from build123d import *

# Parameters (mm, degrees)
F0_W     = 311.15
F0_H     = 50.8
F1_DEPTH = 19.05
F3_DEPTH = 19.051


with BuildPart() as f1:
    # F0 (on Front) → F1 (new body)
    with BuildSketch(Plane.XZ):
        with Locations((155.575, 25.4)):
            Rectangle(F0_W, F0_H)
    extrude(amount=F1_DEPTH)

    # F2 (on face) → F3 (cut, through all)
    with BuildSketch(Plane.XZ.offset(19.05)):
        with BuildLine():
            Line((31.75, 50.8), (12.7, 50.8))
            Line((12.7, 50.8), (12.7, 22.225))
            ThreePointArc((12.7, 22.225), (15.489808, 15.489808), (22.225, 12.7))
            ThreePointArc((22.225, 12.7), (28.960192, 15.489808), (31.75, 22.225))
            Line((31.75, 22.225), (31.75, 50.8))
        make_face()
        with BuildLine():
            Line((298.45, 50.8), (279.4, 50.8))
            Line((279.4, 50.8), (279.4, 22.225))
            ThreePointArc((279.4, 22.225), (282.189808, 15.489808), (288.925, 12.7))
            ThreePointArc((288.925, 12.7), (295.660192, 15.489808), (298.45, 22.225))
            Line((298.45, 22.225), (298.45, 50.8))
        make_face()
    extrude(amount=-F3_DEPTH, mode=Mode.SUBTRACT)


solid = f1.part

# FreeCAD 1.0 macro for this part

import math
import FreeCAD as App
import Part
import Sketcher

V = App.Vector
Q = App.Units.Quantity


def add_polygon(sketch, points):
    """Adds a closed chain of lines whose ends are joined by coincident constraints."""
    first, n = sketch.GeometryCount, len(points)
    for a, b in zip(points, points[1:] + points[:1]):
        sketch.addGeometry(Part.LineSegment(App.Vector(*a, 0), App.Vector(*b, 0)), False)
    for i in range(n):
        sketch.addConstraint(Sketcher.Constraint("Coincident", first + i, 2, first + (i + 1) % n, 1))

doc = App.newDocument("Part")
body = doc.addObject("PartDesign::Body", "Body")

# Sketch on XZ plane
sketch1 = body.newObject("Sketcher::SketchObject", "Sketch")
sketch1.AttachmentSupport = (doc.getObject("XZ_Plane"), [""])
sketch1.MapMode = "FlatFace"
add_polygon(sketch1, [(0, 51), (0, 0), (311, 0), (311, 51)])  # lines 0-3
sketch1.addConstraint([
    Sketcher.Constraint("Vertical", 0),
    Sketcher.Constraint("Horizontal", 1),
    Sketcher.Constraint("Vertical", 2),
    Sketcher.Constraint("Horizontal", 3),
    Sketcher.Constraint("Coincident", 0, 2, -1, 1),
    Sketcher.Constraint("DistanceY", 0, 2, 0, 1, Q("2 in")),
    Sketcher.Constraint("DistanceX", 1, 1, 1, 2, Q("12.25 in")),
])
pad1 = body.newObject("PartDesign::Pad", "Pad")
pad1.Profile = sketch1
pad1.Length = Q("0.75 in")

# Sketch on XZ plane
sketch2 = body.newObject("Sketcher::SketchObject", "Sketch001")
sketch2.AttachmentSupport = (doc.getObject("XZ_Plane"), [""])
sketch2.MapMode = "FlatFace"
sketch2.AttachmentOffset = App.Placement(V(0, 0, 0.75 * 25.4), App.Rotation())
sketch2.addGeometry([
    Part.LineSegment(V(32, 51, 0), V(13, 51, 0)),  # 0
    Part.LineSegment(V(13, 51, 0), V(13, 22, 0)),  # 1
    Part.ArcOfCircle(Part.Circle(V(22, 22, 0), V(0, 0, 1), 10), math.radians(-180), math.radians(-90)),  # 2
    Part.ArcOfCircle(Part.Circle(V(22, 22, 0), V(0, 0, 1), 10), math.radians(-90), math.radians(0)),  # 3
    Part.LineSegment(V(32, 22, 0), V(32, 51, 0)),  # 4
    Part.LineSegment(V(298, 51, 0), V(279, 51, 0)),  # 5
    Part.LineSegment(V(279, 51, 0), V(279, 22, 0)),  # 6
    Part.ArcOfCircle(Part.Circle(V(289, 22, 0), V(0, 0, 1), 10), math.radians(-180), math.radians(-90)),  # 7
    Part.ArcOfCircle(Part.Circle(V(289, 22, 0), V(0, 0, 1), 10), math.radians(-90), math.radians(0)),  # 8
    Part.LineSegment(V(298, 22, 0), V(298, 51, 0)),  # 9
], False)
sketch2.addConstraint([
    Sketcher.Constraint("Coincident", 0, 2, 1, 1),
    Sketcher.Constraint("Tangent", 1, 2, 2, 1),
    Sketcher.Constraint("Tangent", 2, 2, 3, 1),
    Sketcher.Constraint("Tangent", 3, 2, 4, 1),
    Sketcher.Constraint("Coincident", 4, 2, 0, 1),
    Sketcher.Constraint("Coincident", 5, 2, 6, 1),
    Sketcher.Constraint("Tangent", 6, 2, 7, 1),
    Sketcher.Constraint("Tangent", 7, 2, 8, 1),
    Sketcher.Constraint("Tangent", 8, 2, 9, 1),
    Sketcher.Constraint("Coincident", 9, 2, 5, 1),
    Sketcher.Constraint("Horizontal", 0),
    Sketcher.Constraint("Vertical", 1),
    Sketcher.Constraint("Vertical", 4),
    Sketcher.Constraint("Horizontal", 5),
    Sketcher.Constraint("Vertical", 6),
    Sketcher.Constraint("Vertical", 9),
    Sketcher.Constraint("Equal", 2, 3),
    Sketcher.Constraint("Equal", 3, 7),
    Sketcher.Constraint("Equal", 7, 8),
    Sketcher.Constraint("Horizontal", 3, 3, 7, 3),
    Sketcher.Constraint("Horizontal", 4, 2, 5, 2),
    Sketcher.Constraint("Vertical", 3, 3, 2, 2),
    Sketcher.Constraint("Vertical", 8, 3, 7, 2),
    Sketcher.Constraint("DistanceY", -1, 1, 0, 2, Q("2 in")),
    Sketcher.Constraint("DistanceX", -1, 1, 5, 2, Q("11 in")),
    Sketcher.Constraint("Radius", 2, Q("0.375 in")),
    Sketcher.Constraint("DistanceX", -1, 1, 0, 2, Q("0.5 in")),
    Sketcher.Constraint("DistanceY", -1, 1, 2, 2, Q("0.5 in")),
])
pocket1 = body.newObject("PartDesign::Pocket", "Pocket")
pocket1.Profile = sketch2
pocket1.Type = "ThroughAll"

doc.recompute()
